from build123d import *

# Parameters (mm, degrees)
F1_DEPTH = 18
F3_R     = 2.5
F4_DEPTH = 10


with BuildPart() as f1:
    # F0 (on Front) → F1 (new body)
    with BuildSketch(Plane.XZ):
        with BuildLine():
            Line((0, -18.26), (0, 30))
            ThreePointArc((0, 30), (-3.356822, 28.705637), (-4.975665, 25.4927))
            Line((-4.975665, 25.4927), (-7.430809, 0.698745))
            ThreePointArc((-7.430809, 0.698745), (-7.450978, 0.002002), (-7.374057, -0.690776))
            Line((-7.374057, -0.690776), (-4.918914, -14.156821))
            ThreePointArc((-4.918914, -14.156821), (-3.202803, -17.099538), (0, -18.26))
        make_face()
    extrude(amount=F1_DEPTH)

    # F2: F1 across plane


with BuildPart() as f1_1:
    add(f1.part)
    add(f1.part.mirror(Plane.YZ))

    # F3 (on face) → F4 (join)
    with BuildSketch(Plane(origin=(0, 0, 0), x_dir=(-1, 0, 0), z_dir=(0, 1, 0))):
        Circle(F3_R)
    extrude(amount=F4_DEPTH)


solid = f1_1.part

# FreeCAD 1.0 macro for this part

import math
import FreeCAD as App
import Part
import Sketcher

V = App.Vector

doc = App.newDocument("Part")
params = doc.addObject("Spreadsheet::Sheet", "Params")
for row, (alias, value) in enumerate([
    ("sketch1_radius", "4.999999 mm"),
    ("sketch1_radius2", "5.000001 mm"),
    ("sketch1_height", "48.26 mm"),
    ("pad1_length", "18 mm"),
    ("sketch2_diameter", "5 mm"),
    ("pad2_length", "10 mm"),
], start=1):
    params.set(f"A{row}", alias)
    params.set(f"B{row}", "=" + value)
    params.setAlias(f"B{row}", alias)

body = doc.addObject("PartDesign::Body", "Body")

# Sketch on XZ plane
sketch1 = body.newObject("Sketcher::SketchObject", "Sketch")
sketch1.AttachmentSupport = (doc.getObject("XZ_Plane"), [""])
sketch1.MapMode = "FlatFace"
sketch1.addGeometry(Part.LineSegment(V(0, -18.26, 0), V(0, 30, 0)), False)
sketch1.addGeometry(Part.ArcOfCircle(Part.Circle(V(0, 25.000001, 0), V(0, 0, 1), 4.999999), math.radians(89.999998), math.radians(174.344904)), False)
sketch1.addGeometry(Part.LineSegment(V(-4.975665, 25.4927, 0), V(-7.430809, 0.698745, 0)), False)
sketch1.addGeometry(Part.ArcOfCircle(Part.Circle(V(-2.45511, 0.206047, 0), V(0, 0, 1), 5.000033), math.radians(174.344961), math.radians(190.332685)), False)
sketch1.addGeometry(Part.LineSegment(V(-7.374057, -0.690776, 0), V(-4.918914, -14.156821, 0)), False)
sketch1.addGeometry(Part.ArcOfCircle(Part.Circle(V(0, -13.259999, 0), V(0, 0, 1), 5.000001), math.radians(-169.667263), math.radians(-90.000005)), False)
sketch1.addConstraint(Sketcher.Constraint("Coincident", 0, 2, 1, 1))
sketch1.addConstraint(Sketcher.Constraint("Coincident", 1, 2, 2, 1))
sketch1.addConstraint(Sketcher.Constraint("Coincident", 2, 2, 3, 1))
sketch1.addConstraint(Sketcher.Constraint("Coincident", 3, 2, 4, 1))
sketch1.addConstraint(Sketcher.Constraint("Coincident", 4, 2, 5, 1))
sketch1.addConstraint(Sketcher.Constraint("Coincident", 5, 2, 0, 1))
sketch1.addConstraint(Sketcher.Constraint("Vertical", 0))
sketch1.addConstraint(Sketcher.Constraint("PointOnObject", 1, 3, -2))
sketch1.addConstraint(Sketcher.Constraint("PointOnObject", 5, 3, -2))
sketch1.addConstraint(Sketcher.Constraint("PointOnObject", 0, 2, -2))
sketch1.addConstraint(Sketcher.Constraint("Radius", 1, 4.999999))
sketch1.addConstraint(Sketcher.Constraint("Radius", 5, 5.000001))
sketch1.addConstraint(Sketcher.Constraint("DistanceY", -1, 1, 1, 3, 25.000001))
sketch1.addConstraint(Sketcher.Constraint("DistanceY", 0, 1, 0, 2, 48.26))
sketch1.addConstraint(Sketcher.Constraint("Radius", 3, 5.000033))
sketch1.addConstraint(Sketcher.Constraint("DistanceY", -1, 1, 1, 2, 25.4927))
sketch1.addConstraint(Sketcher.Constraint("DistanceX", 2, 2, 3, 3, 4.975699))
sketch1.addConstraint(Sketcher.Constraint("DistanceX", 3, 3, -1, 1, 2.45511))
sketch1.addConstraint(Sketcher.Constraint("DistanceY", 4, 2, -1, 1, 14.156821))
sketch1.addConstraint(Sketcher.Constraint("DistanceY", 3, 2, 2, 2, 1.389521))
sketch1.addConstraint(Sketcher.Constraint("DistanceY", 4, 2, 3, 3, 14.362868))
sketch1.setExpression("Constraints[10]", "Params.sketch1_radius")
sketch1.setExpression("Constraints[11]", "Params.sketch1_radius2")
sketch1.setExpression("Constraints[13]", "Params.sketch1_height")
pad1 = body.newObject("PartDesign::Pad", "Pad")
pad1.Profile = sketch1
pad1.setExpression("Length", "Params.pad1_length")
body2 = doc.addObject("PartDesign::Body", "Body001")
doc.recompute()

body2.BaseFeature = body
doc.recompute()

mirroring = doc.addObject("Part::Mirroring", "Mirroring")
mirroring.Source = body
mirroring.Base = V(0, 0, 0)
mirroring.Normal = V(1, 0, 0)
body3 = doc.addObject("PartDesign::Body", "Body002")
body3.BaseFeature = mirroring
boolean = body2.newObject("PartDesign::Boolean", "Boolean")
boolean.Type = "Fuse"
boolean.addObjects([body3])
doc.recompute()

# Sketch on XZ plane
sketch2 = body2.newObject("Sketcher::SketchObject", "Sketch001")
sketch2.AttachmentSupport = (doc.getObject("XZ_Plane001"), [""])
sketch2.MapMode = "FlatFace"
sketch2.addGeometry(Part.Circle(V(0, 0, 0), V(0, 0, 1), 2.5), False)
sketch2.addConstraint(Sketcher.Constraint("Coincident", 0, 3, -1, 1))
sketch2.addConstraint(Sketcher.Constraint("Diameter", 0, 5.0))
sketch2.setExpression("Constraints[1]", "Params.sketch2_diameter")
pad2 = body2.newObject("PartDesign::Pad", "Pad001")
pad2.Profile = sketch2
pad2.setExpression("Length", "Params.pad2_length")
pad2.Reversed = True
mirroring.Visibility = False

doc.recompute()
